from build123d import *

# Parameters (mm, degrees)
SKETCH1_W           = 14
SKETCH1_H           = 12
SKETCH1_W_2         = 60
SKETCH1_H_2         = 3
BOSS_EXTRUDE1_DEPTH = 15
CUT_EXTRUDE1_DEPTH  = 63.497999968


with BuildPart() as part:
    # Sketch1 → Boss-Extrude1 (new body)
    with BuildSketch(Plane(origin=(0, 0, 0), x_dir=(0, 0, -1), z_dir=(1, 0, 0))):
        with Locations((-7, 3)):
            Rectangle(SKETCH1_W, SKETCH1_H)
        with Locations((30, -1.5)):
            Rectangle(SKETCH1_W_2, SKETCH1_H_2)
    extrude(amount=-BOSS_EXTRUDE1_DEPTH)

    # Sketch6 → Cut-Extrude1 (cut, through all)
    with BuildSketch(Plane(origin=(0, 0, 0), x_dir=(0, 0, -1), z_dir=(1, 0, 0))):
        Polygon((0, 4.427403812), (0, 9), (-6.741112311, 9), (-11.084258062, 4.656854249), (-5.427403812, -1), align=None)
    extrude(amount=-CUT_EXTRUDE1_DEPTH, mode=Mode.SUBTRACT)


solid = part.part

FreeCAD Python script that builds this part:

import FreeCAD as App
import Part
import Sketcher

V = App.Vector
Q = App.Units.Quantity


def add_polygon(sketch, points):
    """Adds a closed chain of lines whose ends are joined by coincident constraints."""
    first, n = sketch.GeometryCount, len(points)
    for a, b in zip(points, points[1:] + points[:1]):
        sketch.addGeometry(Part.LineSegment(App.Vector(*a, 0), App.Vector(*b, 0)), False)
    for i in range(n):
        sketch.addConstraint(Sketcher.Constraint("Coincident", first + i, 2, first + (i + 1) % n, 1))

doc = App.newDocument("Part")
body = doc.addObject("PartDesign::Body", "Body")

# Sketch on YZ plane
sketch1 = body.newObject("Sketcher::SketchObject", "Sketch")
sketch1.AttachmentSupport = (doc.getObject("YZ_Plane"), [""])
sketch1.MapMode = "FlatFace"
add_polygon(sketch1, [(9, 14), (-3, 14), (-3, -60), (0, -60), (0, 0), (9, 0)])  # lines 0-5
sketch1.addConstraint(Sketcher.Constraint("Horizontal", 0))
sketch1.addConstraint(Sketcher.Constraint("Vertical", 1))
sketch1.addConstraint(Sketcher.Constraint("Horizontal", 2))
sketch1.addConstraint(Sketcher.Constraint("Vertical", 3))
sketch1.addConstraint(Sketcher.Constraint("Horizontal", 4))
sketch1.addConstraint(Sketcher.Constraint("Vertical", 5))
sketch1.addConstraint(Sketcher.Constraint("Coincident", 3, 2, -1, 1))
sketch1.addConstraint(Sketcher.Constraint("DistanceX", 0, 2, 0, 1, 12.0))
sketch1.addConstraint(Sketcher.Constraint("DistanceX", 2, 1, 2, 2, 3.0))
sketch1.addConstraint(Sketcher.Constraint("DistanceY", 1, 2, 1, 1, 74.0))
sketch1.addConstraint(Sketcher.Constraint("DistanceY", 3, 1, 3, 2, 60.0))
pad1 = body.newObject("PartDesign::Pad", "Pad")
pad1.Profile = sketch1
pad1.Length = 15
pad1.Reversed = True

# Sketch on YZ plane
sketch2 = body.newObject("Sketcher::SketchObject", "Sketch001")
sketch2.AttachmentSupport = (doc.getObject("YZ_Plane"), [""])
sketch2.MapMode = "FlatFace"
add_polygon(sketch2, [(4.4, 0), (9, 0), (9, 6.7), (4.7, 11.1), (-1, 5.4)])  # lines 0-4
sketch2.addConstraint(Sketcher.Constraint("Horizontal", 0))
sketch2.addConstraint(Sketcher.Constraint("Vertical", 1))
sketch2.addConstraint(Sketcher.Constraint("PointOnObject", 0, 2, -1))
sketch2.addConstraint(Sketcher.Constraint("Perpendicular", 2, 3))
sketch2.addConstraint(Sketcher.Constraint("Perpendicular", 3, 4))
sketch2.addConstraint(Sketcher.Constraint("Angle", 2, Q("135 deg")))
sketch2.addConstraint(Sketcher.Constraint("Distance", 3, 8.0))
sketch2.addConstraint(Sketcher.Constraint("DistanceX", -1, 1, 0, 2, 9.0))
sketch2.addConstraint(Sketcher.Constraint("DistanceX", 3, 2, -1, 1, 1.0))
sketch2.addConstraint(Sketcher.Constraint("Distance", 4, 7.675508))
pocket1 = body.newObject("PartDesign::Pocket", "Pocket")
pocket1.Profile = sketch2
pocket1.Type = "ThroughAll"

doc.recompute()
